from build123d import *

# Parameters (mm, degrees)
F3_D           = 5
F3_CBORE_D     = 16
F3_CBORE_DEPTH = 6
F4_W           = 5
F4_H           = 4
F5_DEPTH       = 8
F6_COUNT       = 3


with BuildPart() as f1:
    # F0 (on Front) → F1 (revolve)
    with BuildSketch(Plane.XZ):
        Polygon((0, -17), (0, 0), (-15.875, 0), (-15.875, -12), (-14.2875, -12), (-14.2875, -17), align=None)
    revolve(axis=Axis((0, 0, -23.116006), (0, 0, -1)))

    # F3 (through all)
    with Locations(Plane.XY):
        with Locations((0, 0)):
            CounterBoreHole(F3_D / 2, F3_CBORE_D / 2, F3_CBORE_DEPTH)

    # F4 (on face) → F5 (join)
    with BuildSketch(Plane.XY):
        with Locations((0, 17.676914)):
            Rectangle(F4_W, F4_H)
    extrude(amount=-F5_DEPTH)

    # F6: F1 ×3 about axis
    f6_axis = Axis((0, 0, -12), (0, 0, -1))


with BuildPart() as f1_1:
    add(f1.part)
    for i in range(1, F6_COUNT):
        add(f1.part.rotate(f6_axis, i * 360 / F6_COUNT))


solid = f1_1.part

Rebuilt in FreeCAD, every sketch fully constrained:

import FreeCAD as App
import Part
import Sketcher
from FreeCAD import Vector


def add_polygon(sketch, points):
    """Adds a closed chain of lines whose ends are joined by coincident constraints."""
    first, n = sketch.GeometryCount, len(points)
    for a, b in zip(points, points[1:] + points[:1]):
        sketch.addGeometry(Part.LineSegment(App.Vector(*a, 0), App.Vector(*b, 0)), False)
    for i in range(n):
        sketch.addConstraint(Sketcher.Constraint("Coincident", first + i, 2, first + (i + 1) % n, 1))

doc = App.newDocument("Part")
params = doc.addObject("Spreadsheet::Sheet", "Params")
for row, (alias, value) in enumerate([
    ("sketch1_height", "17 mm"),
    ("sketch1_height2", "12 mm"),
    ("revolution_angle", "360 deg"),
    ("sketch2_diameter", "5 mm"),
    ("hole_diameter", "5 mm"),
    ("hole_cbore_diameter", "16 mm"),
    ("hole_cbore_depth", "6 mm"),
    ("sketch3_width", "5 mm"),
    ("sketch3_height", "4 mm"),
    ("pad1_length", "8 mm"),
], start=1):
    params.set(f"A{row}", alias)
    params.set(f"B{row}", "=" + value)
    params.setAlias(f"B{row}", alias)

body = doc.addObject("PartDesign::Body", "Body")

# Sketch on XZ plane
sketch1 = body.newObject("Sketcher::SketchObject", "Sketch")
sketch1.AttachmentSupport = (doc.getObject("XZ_Plane"), [""])
sketch1.MapMode = "FlatFace"
add_polygon(sketch1, [(0, -17), (0, 0), (-15.9, 0), (-15.9, -12), (-14.3, -12), (-14.3, -17)])  # lines 0-5
sketch1.addConstraint(Sketcher.Constraint("Vertical", 0))
sketch1.addConstraint(Sketcher.Constraint("Horizontal", 1))
sketch1.addConstraint(Sketcher.Constraint("Vertical", 2))
sketch1.addConstraint(Sketcher.Constraint("Horizontal", 3))
sketch1.addConstraint(Sketcher.Constraint("Vertical", 4))
sketch1.addConstraint(Sketcher.Constraint("Horizontal", 5))
sketch1.addConstraint(Sketcher.Constraint("Coincident", 0, 2, -1, 1))
sketch1.addConstraint(Sketcher.Constraint("DistanceY", 0, 1, 0, 2, 17.0))
sketch1.addConstraint(Sketcher.Constraint("DistanceY", 2, 2, 2, 1, 12.0))
sketch1.addConstraint(Sketcher.Constraint("DistanceX", 1, 2, 1, 1, 15.875))
sketch1.addConstraint(Sketcher.Constraint("DistanceX", 3, 1, 3, 2, 1.5875))
sketch1.setExpression("Constraints[13]", "Params.sketch1_height")
sketch1.setExpression("Constraints[14]", "Params.sketch1_height2")
revolution = body.newObject("PartDesign::Revolution", "Revolution")
revolution.Profile = sketch1
revolution.ReferenceAxis = (sketch1, ["V_Axis"])
revolution.setExpression("Angle", "Params.revolution_angle")

# Sketch on XY plane
sketch2 = body.newObject("Sketcher::SketchObject", "Sketch001")
sketch2.AttachmentSupport = (doc.getObject("XY_Plane"), [""])
sketch2.MapMode = "FlatFace"
sketch2.addGeometry(Part.Circle(Vector(0, 0, 0), Vector(0, 0, 1), 2.5), False)
sketch2.addConstraint(Sketcher.Constraint("Coincident", 0, 3, -1, 1))
sketch2.addConstraint(Sketcher.Constraint("Diameter", 0, 5.0))
sketch2.setExpression("Constraints[1]", "Params.sketch2_diameter")
doc.recompute()
hole = body.newObject("PartDesign::Hole", "Hole")
hole.Profile = sketch2
hole.ThreadType = "None"
hole.setExpression("Diameter", "Params.hole_diameter")
hole.DepthType = "ThroughAll"
hole.HoleCutType = "Counterbore"
hole.setExpression("HoleCutDiameter", "Params.hole_cbore_diameter")
hole.setExpression("HoleCutDepth", "Params.hole_cbore_depth")

# Sketch on XY plane
sketch3 = body.newObject("Sketcher::SketchObject", "Sketch002")
sketch3.AttachmentSupport = (doc.getObject("XY_Plane"), [""])
sketch3.MapMode = "FlatFace"
add_polygon(sketch3, [(-2.5, 19.7), (-2.5, 15.7), (2.5, 15.7), (2.5, 19.7)])  # lines 0-3
sketch3.addConstraint(Sketcher.Constraint("Vertical", 0))
sketch3.addConstraint(Sketcher.Constraint("Horizontal", 1))
sketch3.addConstraint(Sketcher.Constraint("Vertical", 2))
sketch3.addConstraint(Sketcher.Constraint("Horizontal", 3))
sketch3.addConstraint(Sketcher.Constraint("DistanceX", 1, 1, 1, 2, 5.0))
sketch3.addConstraint(Sketcher.Constraint("DistanceY", 0, 2, 0, 1, 4.0))
sketch3.addConstraint(Sketcher.Constraint("DistanceX", 0, 2, -1, 1, 2.5))
sketch3.addConstraint(Sketcher.Constraint("DistanceY", -1, 1, 0, 2, 15.676914))
sketch3.setExpression("Constraints[8]", "Params.sketch3_width")
sketch3.setExpression("Constraints[9]", "Params.sketch3_height")
pad1 = body.newObject("PartDesign::Pad", "Pad")
pad1.Profile = sketch3
pad1.setExpression("Length", "Params.pad1_length")
pad1.Reversed = True
body2 = doc.addObject("PartDesign::Body", "Body001")
doc.recompute()

body2.BaseFeature = body
doc.recompute()

body3 = doc.addObject("PartDesign::Body", "Body002")
body3.BaseFeature = body
body3.Placement = App.Placement(Vector(0, 0, 0), App.Rotation(Vector(0, 0, -1), 120))
boolean = body2.newObject("PartDesign::Boolean", "Boolean")
boolean.Type = "Fuse"
boolean.addObjects([body3])
doc.recompute()

body.Placement = App.Placement(Vector(0, 0, 0), App.Rotation(Vector(0, 0, -1), 240))
boolean2 = body2.newObject("PartDesign::Boolean", "Boolean001")
boolean2.Type = "Fuse"
boolean2.addObjects([body])

doc.recompute()
